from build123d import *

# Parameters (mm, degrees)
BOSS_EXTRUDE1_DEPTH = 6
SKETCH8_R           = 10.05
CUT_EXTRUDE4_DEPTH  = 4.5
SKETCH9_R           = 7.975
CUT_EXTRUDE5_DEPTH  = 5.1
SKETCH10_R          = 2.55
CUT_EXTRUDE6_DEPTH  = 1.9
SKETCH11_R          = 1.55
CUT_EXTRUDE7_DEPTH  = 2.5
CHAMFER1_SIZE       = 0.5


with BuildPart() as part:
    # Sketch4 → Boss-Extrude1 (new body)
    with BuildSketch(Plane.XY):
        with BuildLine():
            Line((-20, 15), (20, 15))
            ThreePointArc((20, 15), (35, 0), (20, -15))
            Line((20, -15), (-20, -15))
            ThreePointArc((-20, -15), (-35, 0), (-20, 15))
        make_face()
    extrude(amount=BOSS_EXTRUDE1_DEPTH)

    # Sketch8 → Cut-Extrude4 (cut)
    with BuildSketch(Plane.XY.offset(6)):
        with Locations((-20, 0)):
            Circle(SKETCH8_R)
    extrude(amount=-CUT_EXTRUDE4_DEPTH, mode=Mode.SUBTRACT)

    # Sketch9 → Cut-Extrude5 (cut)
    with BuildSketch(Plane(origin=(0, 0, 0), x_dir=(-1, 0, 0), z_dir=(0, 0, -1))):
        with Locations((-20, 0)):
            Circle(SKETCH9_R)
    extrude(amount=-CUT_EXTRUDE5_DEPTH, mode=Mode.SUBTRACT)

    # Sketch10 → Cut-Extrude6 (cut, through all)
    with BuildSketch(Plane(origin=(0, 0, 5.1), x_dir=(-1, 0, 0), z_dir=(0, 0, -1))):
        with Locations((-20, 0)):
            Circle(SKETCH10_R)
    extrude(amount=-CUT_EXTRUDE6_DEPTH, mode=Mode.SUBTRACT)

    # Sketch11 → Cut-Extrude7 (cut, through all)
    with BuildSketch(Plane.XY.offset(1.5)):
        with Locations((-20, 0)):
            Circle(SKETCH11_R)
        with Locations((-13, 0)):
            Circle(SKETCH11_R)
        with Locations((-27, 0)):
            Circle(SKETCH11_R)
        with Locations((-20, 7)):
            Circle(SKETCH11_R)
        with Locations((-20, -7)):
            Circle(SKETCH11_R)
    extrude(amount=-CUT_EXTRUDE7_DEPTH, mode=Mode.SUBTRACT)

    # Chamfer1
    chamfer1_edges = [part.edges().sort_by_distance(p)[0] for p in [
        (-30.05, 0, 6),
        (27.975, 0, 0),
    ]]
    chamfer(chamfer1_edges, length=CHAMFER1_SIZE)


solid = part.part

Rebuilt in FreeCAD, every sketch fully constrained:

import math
import FreeCAD as App
import Part
import Sketcher


def edges_at(feature, points):
    """Names of the edges that pass closest to the given points."""
    edges = feature.Shape.Edges
    near = lambda p: min(range(len(edges)), key=lambda i: edges[i].distToShape(Part.Vertex(*p))[0])
    return sorted({f"Edge{near(p) + 1}" for p in points})

doc = App.newDocument("Part")
body = doc.addObject("PartDesign::Body", "Body")

# Sketch on XY plane
sketch1 = body.newObject("Sketcher::SketchObject", "Sketch")
sketch1.AttachmentSupport = (doc.getObject("XY_Plane"), [""])
sketch1.MapMode = "FlatFace"
sketch1.addGeometry([
    Part.LineSegment(App.Vector(20, 15, 0), App.Vector(-20, 15, 0)),
    Part.ArcOfCircle(Part.Circle(App.Vector(-20, 0, 0), App.Vector(0, 0, 1), 15), math.radians(90), math.radians(270)),
    Part.LineSegment(App.Vector(-20, -15, 0), App.Vector(20, -15, 0)),
    Part.ArcOfCircle(Part.Circle(App.Vector(20, 0, 0), App.Vector(0, 0, 1), 15), math.radians(-90), math.radians(90)),
], False)
sketch1.addConstraint([
    Sketcher.Constraint("Tangent", 0, 2, 1, 1),
    Sketcher.Constraint("Tangent", 1, 2, 2, 1),
    Sketcher.Constraint("Tangent", 2, 2, 3, 1),
    Sketcher.Constraint("Tangent", 3, 2, 0, 1),
    Sketcher.Constraint("Horizontal", 0),
    Sketcher.Constraint("Horizontal", 2),
    Sketcher.Constraint("Symmetric", 1, 3, 3, 3, -1, 1),
    Sketcher.Constraint("Radius", 1, 15.0),
    Sketcher.Constraint("DistanceX", 0, 2, 0, 1, 40.0),
])
pad1 = body.newObject("PartDesign::Pad", "Pad")
pad1.Profile = sketch1
pad1.Length = 6

# Sketch on XY plane
sketch2 = body.newObject("Sketcher::SketchObject", "Sketch001")
sketch2.AttachmentSupport = (doc.getObject("XY_Plane"), [""])
sketch2.MapMode = "FlatFace"
sketch2.AttachmentOffset = App.Placement(App.Vector(0, 0, 6), App.Rotation())
sketch2.addGeometry(Part.Circle(App.Vector(-20, 0, 0), App.Vector(0, 0, 1), 10), False)
sketch2.addConstraint([
    Sketcher.Constraint("PointOnObject", 0, 3, -1),
    Sketcher.Constraint("Diameter", 0, 20.1),
    Sketcher.Constraint("DistanceX", 0, 3, -1, 1, 20.0),
])
pocket1 = body.newObject("PartDesign::Pocket", "Pocket")
pocket1.Profile = sketch2
pocket1.Length = 4.5

# Sketch on XY plane
sketch3 = body.newObject("Sketcher::SketchObject", "Sketch002")
sketch3.AttachmentSupport = (doc.getObject("XY_Plane"), [""])
sketch3.MapMode = "FlatFace"
sketch3.addGeometry(Part.Circle(App.Vector(20, 0, 0), App.Vector(0, 0, 1), 8), False)
sketch3.addConstraint([
    Sketcher.Constraint("PointOnObject", 0, 3, -1),
    Sketcher.Constraint("Diameter", 0, 15.95),
    Sketcher.Constraint("DistanceX", -1, 1, 0, 3, 20.0),
])
pocket2 = body.newObject("PartDesign::Pocket", "Pocket001")
pocket2.Profile = sketch3
pocket2.Length = 5.1
pocket2.Reversed = True

# Sketch on XY plane
sketch4 = body.newObject("Sketcher::SketchObject", "Sketch003")
sketch4.AttachmentSupport = (doc.getObject("XY_Plane"), [""])
sketch4.MapMode = "FlatFace"
sketch4.AttachmentOffset = App.Placement(App.Vector(0, 0, 5.1), App.Rotation())
sketch4.addGeometry(Part.Circle(App.Vector(20, 0, 0), App.Vector(0, 0, 1), 2.5), False)
sketch4.addConstraint([
    Sketcher.Constraint("PointOnObject", 0, 3, -1),
    Sketcher.Constraint("Diameter", 0, 5.1),
    Sketcher.Constraint("DistanceX", -1, 1, 0, 3, 20.0),
])
pocket3 = body.newObject("PartDesign::Pocket", "Pocket002")
pocket3.Profile = sketch4
pocket3.Type = "ThroughAll"
pocket3.Reversed = True

# Sketch on XY plane
sketch5 = body.newObject("Sketcher::SketchObject", "Sketch004")
sketch5.AttachmentSupport = (doc.getObject("XY_Plane"), [""])
sketch5.MapMode = "FlatFace"
sketch5.AttachmentOffset = App.Placement(App.Vector(0, 0, 1.5), App.Rotation())
sketch5.addGeometry([
    Part.Circle(App.Vector(-20, 0, 0), App.Vector(0, 0, 1), 1.6),  # 0
    Part.Circle(App.Vector(-13, 0, 0), App.Vector(0, 0, 1), 1.6),  # 1
    Part.Circle(App.Vector(-27, 0, 0), App.Vector(0, 0, 1), 1.6),  # 2
    Part.Circle(App.Vector(-20, 7, 0), App.Vector(0, 0, 1), 1.6),  # 3
    Part.Circle(App.Vector(-20, -7, 0), App.Vector(0, 0, 1), 1.6),  # 4
], False)
sketch5.addConstraint([
    Sketcher.Constraint("Equal", 0, 1),
    Sketcher.Constraint("Equal", 1, 2),
    Sketcher.Constraint("Equal", 2, 3),
    Sketcher.Constraint("Equal", 3, 4),
    Sketcher.Constraint("Symmetric", 3, 3, 4, 3, -1),
    Sketcher.Constraint("PointOnObject", 0, 3, -1),
    Sketcher.Constraint("PointOnObject", 1, 3, -1),
    Sketcher.Constraint("PointOnObject", 2, 3, -1),
    Sketcher.Constraint("Vertical", 0, 3, 3, 3),
    Sketcher.Constraint("Diameter", 0, 3.1),
    Sketcher.Constraint("DistanceX", 0, 3, -1, 1, 20.0),
    Sketcher.Constraint("DistanceX", 1, 3, -1, 1, 13.0),
    Sketcher.Constraint("DistanceX", 2, 3, -1, 1, 27.0),
    Sketcher.Constraint("DistanceY", -1, 1, 3, 3, 7.0),
])
pocket4 = body.newObject("PartDesign::Pocket", "Pocket003")
pocket4.Profile = sketch5
pocket4.Type = "ThroughAll"
doc.recompute()

chamfer = body.newObject("PartDesign::Chamfer", "Chamfer")
chamfer.Base = (pocket4, edges_at(pocket4, [(-30.05, 0, 6), (27.975, 0, 0)]))
chamfer.Size = 0.5

doc.recompute()
